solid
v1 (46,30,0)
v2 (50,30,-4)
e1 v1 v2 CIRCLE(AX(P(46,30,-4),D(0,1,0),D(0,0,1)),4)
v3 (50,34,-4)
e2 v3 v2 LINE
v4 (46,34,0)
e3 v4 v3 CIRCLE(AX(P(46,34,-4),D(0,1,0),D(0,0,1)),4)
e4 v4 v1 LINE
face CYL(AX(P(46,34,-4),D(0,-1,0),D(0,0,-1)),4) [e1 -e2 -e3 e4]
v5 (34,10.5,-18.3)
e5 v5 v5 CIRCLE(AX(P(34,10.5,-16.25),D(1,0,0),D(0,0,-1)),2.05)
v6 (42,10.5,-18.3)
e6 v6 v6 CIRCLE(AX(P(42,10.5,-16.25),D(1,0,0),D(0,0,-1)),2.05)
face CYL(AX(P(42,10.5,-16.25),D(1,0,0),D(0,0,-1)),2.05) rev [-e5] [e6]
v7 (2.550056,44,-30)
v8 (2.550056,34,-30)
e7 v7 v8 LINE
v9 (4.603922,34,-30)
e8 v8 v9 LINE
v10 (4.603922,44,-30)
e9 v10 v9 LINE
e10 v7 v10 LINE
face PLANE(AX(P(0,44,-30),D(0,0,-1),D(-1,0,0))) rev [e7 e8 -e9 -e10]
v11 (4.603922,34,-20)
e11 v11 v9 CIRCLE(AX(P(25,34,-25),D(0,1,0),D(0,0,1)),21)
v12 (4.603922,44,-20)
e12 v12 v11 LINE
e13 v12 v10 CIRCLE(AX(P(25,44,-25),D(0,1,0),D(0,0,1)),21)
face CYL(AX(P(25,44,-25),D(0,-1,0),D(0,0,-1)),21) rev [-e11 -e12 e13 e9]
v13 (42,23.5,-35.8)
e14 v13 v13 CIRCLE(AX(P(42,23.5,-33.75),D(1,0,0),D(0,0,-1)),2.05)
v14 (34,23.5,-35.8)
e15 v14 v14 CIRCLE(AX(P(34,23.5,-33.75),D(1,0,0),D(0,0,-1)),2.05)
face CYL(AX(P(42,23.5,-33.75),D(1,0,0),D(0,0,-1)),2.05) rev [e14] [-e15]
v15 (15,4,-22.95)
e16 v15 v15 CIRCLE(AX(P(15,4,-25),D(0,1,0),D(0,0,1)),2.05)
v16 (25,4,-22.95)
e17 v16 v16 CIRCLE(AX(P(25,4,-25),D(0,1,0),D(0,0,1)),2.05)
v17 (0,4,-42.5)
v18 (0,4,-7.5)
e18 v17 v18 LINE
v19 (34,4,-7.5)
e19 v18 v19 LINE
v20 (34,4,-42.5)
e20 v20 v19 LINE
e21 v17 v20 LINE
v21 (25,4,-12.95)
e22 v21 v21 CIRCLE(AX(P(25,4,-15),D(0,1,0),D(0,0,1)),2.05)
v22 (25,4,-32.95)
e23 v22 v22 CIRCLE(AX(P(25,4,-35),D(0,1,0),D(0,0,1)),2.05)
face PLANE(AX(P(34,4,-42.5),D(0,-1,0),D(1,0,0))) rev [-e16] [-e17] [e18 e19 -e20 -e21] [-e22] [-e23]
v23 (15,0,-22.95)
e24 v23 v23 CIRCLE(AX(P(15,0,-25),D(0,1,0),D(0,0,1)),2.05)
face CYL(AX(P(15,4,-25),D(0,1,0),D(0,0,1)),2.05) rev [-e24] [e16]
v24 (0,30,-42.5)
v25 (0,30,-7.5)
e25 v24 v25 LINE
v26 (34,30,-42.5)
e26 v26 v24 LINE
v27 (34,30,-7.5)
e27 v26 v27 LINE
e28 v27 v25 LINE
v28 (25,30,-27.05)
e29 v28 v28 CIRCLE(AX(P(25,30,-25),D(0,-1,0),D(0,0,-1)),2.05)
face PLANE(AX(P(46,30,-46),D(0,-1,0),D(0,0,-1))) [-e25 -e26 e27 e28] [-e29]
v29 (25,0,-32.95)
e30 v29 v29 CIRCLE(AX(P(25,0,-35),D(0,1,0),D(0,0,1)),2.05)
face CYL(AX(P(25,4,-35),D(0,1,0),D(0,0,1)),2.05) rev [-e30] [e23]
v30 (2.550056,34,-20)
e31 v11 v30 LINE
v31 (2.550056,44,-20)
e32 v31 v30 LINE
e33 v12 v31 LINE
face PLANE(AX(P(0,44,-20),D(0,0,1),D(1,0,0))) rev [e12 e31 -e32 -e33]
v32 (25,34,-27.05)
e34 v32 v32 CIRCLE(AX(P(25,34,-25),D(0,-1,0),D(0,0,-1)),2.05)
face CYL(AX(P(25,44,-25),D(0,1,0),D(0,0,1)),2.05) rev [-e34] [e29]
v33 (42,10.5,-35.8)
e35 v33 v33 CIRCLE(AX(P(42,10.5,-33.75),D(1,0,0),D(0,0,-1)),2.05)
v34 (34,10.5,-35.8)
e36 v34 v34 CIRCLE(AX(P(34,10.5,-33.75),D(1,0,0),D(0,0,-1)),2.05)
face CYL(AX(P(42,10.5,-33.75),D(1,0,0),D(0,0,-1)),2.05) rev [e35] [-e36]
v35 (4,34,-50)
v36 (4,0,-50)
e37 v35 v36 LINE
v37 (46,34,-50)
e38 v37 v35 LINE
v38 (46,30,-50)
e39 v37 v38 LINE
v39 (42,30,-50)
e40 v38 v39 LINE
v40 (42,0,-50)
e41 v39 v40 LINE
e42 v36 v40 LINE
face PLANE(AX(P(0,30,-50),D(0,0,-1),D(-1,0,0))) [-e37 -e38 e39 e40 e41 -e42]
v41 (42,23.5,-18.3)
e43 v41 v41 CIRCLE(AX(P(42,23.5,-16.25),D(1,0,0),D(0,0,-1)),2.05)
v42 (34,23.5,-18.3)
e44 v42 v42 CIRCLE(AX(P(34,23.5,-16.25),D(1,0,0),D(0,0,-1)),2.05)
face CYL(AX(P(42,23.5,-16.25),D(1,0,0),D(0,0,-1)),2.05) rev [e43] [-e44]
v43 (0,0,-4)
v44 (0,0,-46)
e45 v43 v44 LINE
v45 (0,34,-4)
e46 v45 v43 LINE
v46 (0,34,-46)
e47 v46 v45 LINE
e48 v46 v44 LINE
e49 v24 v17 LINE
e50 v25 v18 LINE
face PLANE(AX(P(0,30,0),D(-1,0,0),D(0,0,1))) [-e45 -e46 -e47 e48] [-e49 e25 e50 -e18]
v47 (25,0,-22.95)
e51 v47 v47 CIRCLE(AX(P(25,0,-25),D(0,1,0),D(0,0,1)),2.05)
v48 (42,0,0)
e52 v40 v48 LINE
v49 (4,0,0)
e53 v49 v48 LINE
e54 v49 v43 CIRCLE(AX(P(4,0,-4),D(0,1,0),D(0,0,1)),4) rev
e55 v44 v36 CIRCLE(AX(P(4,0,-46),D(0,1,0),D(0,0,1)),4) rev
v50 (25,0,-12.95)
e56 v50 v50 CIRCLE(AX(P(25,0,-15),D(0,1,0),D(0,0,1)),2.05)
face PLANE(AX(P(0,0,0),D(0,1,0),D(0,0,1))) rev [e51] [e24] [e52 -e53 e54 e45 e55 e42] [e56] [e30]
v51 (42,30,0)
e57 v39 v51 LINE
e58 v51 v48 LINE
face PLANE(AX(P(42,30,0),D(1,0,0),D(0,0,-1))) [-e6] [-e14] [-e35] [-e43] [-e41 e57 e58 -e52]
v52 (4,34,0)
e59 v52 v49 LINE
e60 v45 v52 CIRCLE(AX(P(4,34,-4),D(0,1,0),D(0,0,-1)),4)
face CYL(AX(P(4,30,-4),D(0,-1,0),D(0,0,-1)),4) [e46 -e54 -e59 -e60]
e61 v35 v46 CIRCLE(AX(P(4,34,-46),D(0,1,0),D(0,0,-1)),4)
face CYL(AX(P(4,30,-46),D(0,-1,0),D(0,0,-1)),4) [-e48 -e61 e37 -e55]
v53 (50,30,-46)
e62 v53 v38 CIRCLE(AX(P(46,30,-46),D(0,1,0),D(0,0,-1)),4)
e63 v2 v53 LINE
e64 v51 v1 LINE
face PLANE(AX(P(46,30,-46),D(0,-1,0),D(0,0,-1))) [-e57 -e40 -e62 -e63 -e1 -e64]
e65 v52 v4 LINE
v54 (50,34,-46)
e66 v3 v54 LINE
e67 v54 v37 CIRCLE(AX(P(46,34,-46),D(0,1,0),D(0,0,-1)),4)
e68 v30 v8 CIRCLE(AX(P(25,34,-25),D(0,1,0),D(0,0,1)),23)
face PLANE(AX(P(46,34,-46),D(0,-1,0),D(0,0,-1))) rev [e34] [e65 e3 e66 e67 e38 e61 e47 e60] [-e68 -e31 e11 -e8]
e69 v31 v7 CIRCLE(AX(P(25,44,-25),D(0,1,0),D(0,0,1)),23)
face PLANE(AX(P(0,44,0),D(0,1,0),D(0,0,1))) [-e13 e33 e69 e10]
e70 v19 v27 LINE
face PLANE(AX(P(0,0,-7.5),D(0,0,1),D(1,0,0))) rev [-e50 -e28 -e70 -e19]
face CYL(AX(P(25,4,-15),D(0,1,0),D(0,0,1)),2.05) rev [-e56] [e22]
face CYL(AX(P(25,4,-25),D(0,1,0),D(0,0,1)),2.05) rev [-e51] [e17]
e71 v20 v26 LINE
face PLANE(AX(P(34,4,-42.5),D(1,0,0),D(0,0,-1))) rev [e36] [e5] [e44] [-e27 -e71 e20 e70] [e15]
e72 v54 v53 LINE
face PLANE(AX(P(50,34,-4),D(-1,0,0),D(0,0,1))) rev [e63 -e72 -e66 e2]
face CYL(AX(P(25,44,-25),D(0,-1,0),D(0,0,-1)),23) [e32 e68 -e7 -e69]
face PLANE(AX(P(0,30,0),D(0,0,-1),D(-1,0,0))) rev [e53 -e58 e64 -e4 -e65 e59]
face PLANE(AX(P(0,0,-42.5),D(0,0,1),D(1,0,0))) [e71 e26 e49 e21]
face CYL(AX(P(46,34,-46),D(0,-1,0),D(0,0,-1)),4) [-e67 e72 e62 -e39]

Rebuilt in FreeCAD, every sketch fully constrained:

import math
import FreeCAD as App
import Part
import Sketcher

V = App.Vector

doc = App.newDocument("Part")
body = doc.addObject("PartDesign::Body", "Body")

sketch1 = doc.addObject("Sketcher::SketchObject", "Sketch")
body.addObject(sketch1)
sketch1.AttachmentSupport = (doc.XZ_Plane, [""])
sketch1.MapMode = "FlatFace"
sketch1.addGeometry([
    Part.LineSegment(V(42, 0, 0), V(42, -50, 0)),
    Part.LineSegment(V(42, -50, 0), V(4, -50, 0)),
    Part.ArcOfCircle(Part.Circle(V(4, -46, 0), V(0, 0, 1), 4), math.radians(180), math.radians(270)),
    Part.LineSegment(V(0, -46, 0), V(0, -4, 0)),
    Part.ArcOfCircle(Part.Circle(V(4, -4, 0), V(0, 0, 1), 4), math.radians(90), math.radians(180)),
    Part.LineSegment(V(4, 0, 0), V(42, 0, 0)),
], False)
sketch1.addConstraint([
    Sketcher.Constraint("Coincident", 0, 2, 1, 1),
    Sketcher.Constraint("Tangent", 1, 2, 2, 2),
    Sketcher.Constraint("Tangent", 2, 1, 3, 1),
    Sketcher.Constraint("Tangent", 3, 2, 4, 2),
    Sketcher.Constraint("Tangent", 4, 1, 5, 1),
    Sketcher.Constraint("Coincident", 5, 2, 0, 1),
    Sketcher.Constraint("Vertical", 0),
    Sketcher.Constraint("Horizontal", 1),
    Sketcher.Constraint("Vertical", 3),
    Sketcher.Constraint("Horizontal", 5),
    Sketcher.Constraint("Equal", 2, 4),
    Sketcher.Constraint("PointOnObject", 2, 1, -2),
    Sketcher.Constraint("PointOnObject", 4, 1, -1),
    Sketcher.Constraint("Radius", 2, 4.0),
    Sketcher.Constraint("DistanceX", 1, 2, 1, 1, 38.0),
    Sketcher.Constraint("DistanceY", 0, 2, 0, 1, 50.0),
])
pad1 = doc.addObject("PartDesign::Pad", "Pad")
body.addObject(pad1)
pad1.Profile = sketch1
pad1.Length = 30
pad1.Reversed = True

sketch2 = doc.addObject("Sketcher::SketchObject", "Sketch001")
body.addObject(sketch2)
sketch2.AttachmentSupport = (doc.XY_Plane, [""])
sketch2.MapMode = "FlatFace"
sketch2.AttachmentOffset = App.Placement(V(0, 0, -7.5), App.Rotation())
sketch2.addGeometry([
    Part.LineSegment(V(0, 30, 0), V(0, 4, 0)),
    Part.LineSegment(V(0, 4, 0), V(34, 4, 0)),
    Part.LineSegment(V(34, 4, 0), V(34, 30, 0)),
    Part.LineSegment(V(34, 30, 0), V(0, 30, 0)),
], False)
sketch2.addConstraint([
    Sketcher.Constraint("Coincident", 0, 2, 1, 1),
    Sketcher.Constraint("Coincident", 1, 2, 2, 1),
    Sketcher.Constraint("Coincident", 2, 2, 3, 1),
    Sketcher.Constraint("Coincident", 3, 2, 0, 1),
    Sketcher.Constraint("Vertical", 0),
    Sketcher.Constraint("Horizontal", 1),
    Sketcher.Constraint("Vertical", 2),
    Sketcher.Constraint("Horizontal", 3),
    Sketcher.Constraint("PointOnObject", 0, 2, -2),
    Sketcher.Constraint("DistanceX", 1, 1, 1, 2, 34.0),
    Sketcher.Constraint("DistanceY", 0, 2, 0, 1, 26.0),
    Sketcher.Constraint("DistanceY", -1, 1, 0, 2, 4.0),
])
pocket1 = doc.addObject("PartDesign::Pocket", "Pocket")
body.addObject(pocket1)
pocket1.Profile = sketch2
pocket1.Length = 35

sketch3 = doc.addObject("Sketcher::SketchObject", "Sketch002")
body.addObject(sketch3)
sketch3.AttachmentSupport = (doc.XZ_Plane, [""])
sketch3.MapMode = "FlatFace"
sketch3.AttachmentOffset = App.Placement(V(0, 0, -4), App.Rotation())
sketch3.addGeometry([
    Part.Circle(V(25, -35, 0), V(0, 0, 1), 2),
    Part.Circle(V(25, -25, 0), V(0, 0, 1), 2),
    Part.Circle(V(25, -15, 0), V(0, 0, 1), 2),
    Part.Circle(V(15, -25, 0), V(0, 0, 1), 2),
], False)
sketch3.addConstraint([
    Sketcher.Constraint("Equal", 0, 1),
    Sketcher.Constraint("Equal", 1, 2),
    Sketcher.Constraint("Equal", 2, 3),
    Sketcher.Constraint("Horizontal", 1, 3, 3, 3),
    Sketcher.Constraint("Vertical", 0, 3, 1, 3),
    Sketcher.Constraint("Vertical", 1, 3, 2, 3),
    Sketcher.Constraint("Diameter", 0, 4.1),
    Sketcher.Constraint("DistanceX", -1, 1, 0, 3, 25.0),
    Sketcher.Constraint("DistanceY", 0, 3, -1, 1, 35.0),
    Sketcher.Constraint("DistanceY", 1, 3, -1, 1, 25.0),
    Sketcher.Constraint("DistanceY", 2, 3, -1, 1, 15.0),
    Sketcher.Constraint("DistanceX", -1, 1, 3, 3, 15.0),
])
doc.recompute()
hole = doc.addObject("PartDesign::Hole", "Hole")
body.addObject(hole)
hole.Profile = sketch3
hole.ThreadType = "None"
hole.Diameter = 4.1
hole.DepthType = "ThroughAll"
hole.Reversed = True

sketch4 = doc.addObject("Sketcher::SketchObject", "Sketch003")
body.addObject(sketch4)
sketch4.AttachmentSupport = (doc.YZ_Plane, [""])
sketch4.MapMode = "FlatFace"
sketch4.AttachmentOffset = App.Placement(V(0, 0, 42), App.Rotation())
sketch4.addGeometry([
    Part.Circle(V(23.5, -16.2, 0), V(0, 0, 1), 2),
    Part.Circle(V(23.5, -33.8, 0), V(0, 0, 1), 2),
    Part.Circle(V(10.5, -33.8, 0), V(0, 0, 1), 2),
    Part.Circle(V(10.5, -16.2, 0), V(0, 0, 1), 2),
], False)
sketch4.addConstraint([
    Sketcher.Constraint("Equal", 0, 1),
    Sketcher.Constraint("Equal", 1, 2),
    Sketcher.Constraint("Equal", 2, 3),
    Sketcher.Constraint("Horizontal", 1, 3, 2, 3),
    Sketcher.Constraint("Horizontal", 0, 3, 3, 3),
    Sketcher.Constraint("Vertical", 0, 3, 1, 3),
    Sketcher.Constraint("Vertical", 2, 3, 3, 3),
    Sketcher.Constraint("Diameter", 0, 4.1),
    Sketcher.Constraint("DistanceX", 2, 3, 1, 3, 13.0),
    Sketcher.Constraint("DistanceX", -1, 1, 0, 3, 23.5),
    Sketcher.Constraint("DistanceY", 1, 3, 0, 3, 17.5),
    Sketcher.Constraint("DistanceY", 0, 3, -1, 1, 16.25),
])
doc.recompute()
hole2 = doc.addObject("PartDesign::Hole", "Hole001")
body.addObject(hole2)
hole2.Profile = sketch4
hole2.ThreadType = "None"
hole2.Diameter = 4.1
hole2.DepthType = "ThroughAll"

sketch5 = doc.addObject("Sketcher::SketchObject", "Sketch004")
body.addObject(sketch5)
sketch5.AttachmentSupport = (doc.XZ_Plane, [""])
sketch5.MapMode = "FlatFace"
sketch5.AttachmentOffset = App.Placement(V(0, 0, -30), App.Rotation())
sketch5.addGeometry([
    Part.LineSegment(V(4, 0, 0), V(46, 0, 0)),
    Part.ArcOfCircle(Part.Circle(V(46, -4, 0), V(0, 0, 1), 4), math.radians(0), math.radians(90)),
    Part.LineSegment(V(50, -4, 0), V(50, -46, 0)),
    Part.ArcOfCircle(Part.Circle(V(46, -46, 0), V(0, 0, 1), 4), math.radians(-90), math.radians(0)),
    Part.LineSegment(V(46, -50, 0), V(4, -50, 0)),
    Part.ArcOfCircle(Part.Circle(V(4, -46, 0), V(0, 0, 1), 4), math.radians(180), math.radians(270)),
    Part.LineSegment(V(0, -46, 0), V(0, -4, 0)),
    Part.ArcOfCircle(Part.Circle(V(4, -4, 0), V(0, 0, 1), 4), math.radians(90), math.radians(180)),
], False)
sketch5.addConstraint([
    Sketcher.Constraint("Tangent", 0, 2, 1, 2),
    Sketcher.Constraint("Tangent", 1, 1, 2, 1),
    Sketcher.Constraint("Tangent", 2, 2, 3, 2),
    Sketcher.Constraint("Tangent", 3, 1, 4, 1),
    Sketcher.Constraint("Tangent", 4, 2, 5, 2),
    Sketcher.Constraint("Tangent", 5, 1, 6, 1),
    Sketcher.Constraint("Tangent", 6, 2, 7, 2),
    Sketcher.Constraint("Tangent", 7, 1, 0, 1),
    Sketcher.Constraint("Horizontal", 0),
    Sketcher.Constraint("Vertical", 2),
    Sketcher.Constraint("Horizontal", 4),
    Sketcher.Constraint("Vertical", 6),
    Sketcher.Constraint("Equal", 1, 3),
    Sketcher.Constraint("Equal", 3, 5),
    Sketcher.Constraint("Equal", 5, 7),
    Sketcher.Constraint("PointOnObject", 0, 2, -1),
    Sketcher.Constraint("PointOnObject", 5, 1, -2),
    Sketcher.Constraint("Equal", 4, 2),
    Sketcher.Constraint("Radius", 1, 4.0),
    Sketcher.Constraint("DistanceX", 0, 1, 0, 2, 42.0),
])
pad2 = doc.addObject("PartDesign::Pad", "Pad001")
body.addObject(pad2)
pad2.Profile = sketch5
pad2.Length = 4
pad2.Reversed = True

sketch6 = doc.addObject("Sketcher::SketchObject", "Sketch005")
body.addObject(sketch6)
sketch6.AttachmentSupport = (doc.XZ_Plane, [""])
sketch6.MapMode = "FlatFace"
sketch6.AttachmentOffset = App.Placement(V(0, 0, -34), App.Rotation())
sketch6.addGeometry([
    Part.ArcOfCircle(Part.Circle(V(25, -25, 0), V(0, 0, 1), 23), math.radians(-167), math.radians(0)),
    Part.LineSegment(V(2.6, -30, 0), V(4.6, -30, 0)),
    Part.ArcOfCircle(Part.Circle(V(25, -25, 0), V(0, 0, 1), 21), math.radians(-166), math.radians(0)),
    Part.ArcOfCircle(Part.Circle(V(25, -25, 0), V(0, 0, 1), 21), math.radians(0), math.radians(166)),
    Part.LineSegment(V(4.6, -20, 0), V(2.6, -20, 0)),
    Part.ArcOfCircle(Part.Circle(V(25, -25, 0), V(0, 0, 1), 23), math.radians(0), math.radians(167)),
], False)
sketch6.addConstraint([
    Sketcher.Constraint("Coincident", 0, 1, 1, 1),
    Sketcher.Constraint("Coincident", 1, 2, 2, 1),
    Sketcher.Constraint("Tangent", 2, 2, 3, 1),
    Sketcher.Constraint("Coincident", 3, 2, 4, 1),
    Sketcher.Constraint("Coincident", 4, 2, 5, 2),
    Sketcher.Constraint("Tangent", 5, 1, 0, 2),
    Sketcher.Constraint("Horizontal", 1),
    Sketcher.Constraint("Horizontal", 4),
    Sketcher.Constraint("Coincident", 2, 3, 0, 3),
    Sketcher.Constraint("Equal", 2, 3),
    Sketcher.Constraint("Equal", 0, 5),
    Sketcher.Constraint("Horizontal", 5, 3, 2, 2),
    Sketcher.Constraint("Horizontal", 2, 2, 5, 1),
    Sketcher.Constraint("Vertical", 1, 2, 3, 2),
    Sketcher.Constraint("Radius", 0, 23.0),
    Sketcher.Constraint("Radius", 2, 21.0),
    Sketcher.Constraint("DistanceX", -1, 1, 0, 3, 25.0),
    Sketcher.Constraint("DistanceY", 0, 3, -1, 1, 25.0),
    Sketcher.Constraint("DistanceY", 0, 1, -1, 1, 30.0),
])
pad3 = doc.addObject("PartDesign::Pad", "Pad002")
body.addObject(pad3)
pad3.Profile = sketch6
pad3.Length = 10
pad3.Reversed = True

sketch7 = doc.addObject("Sketcher::SketchObject", "Sketch006")
body.addObject(sketch7)
sketch7.AttachmentSupport = (doc.XZ_Plane, [""])
sketch7.MapMode = "FlatFace"
sketch7.AttachmentOffset = App.Placement(V(0, 0, -44), App.Rotation())
sketch7.addGeometry(Part.Circle(V(25, -25, 0), V(0, 0, 1), 2), False)
sketch7.addConstraint([
    Sketcher.Constraint("Diameter", 0, 4.1),
    Sketcher.Constraint("DistanceX", -1, 1, 0, 3, 25.0),
    Sketcher.Constraint("DistanceY", 0, 3, -1, 1, 25.0),
])
doc.recompute()
hole3 = doc.addObject("PartDesign::Hole", "Hole002")
body.addObject(hole3)
hole3.Profile = sketch7
hole3.ThreadType = "None"
hole3.Diameter = 4.1
hole3.DepthType = "ThroughAll"
hole3.Reversed = True

doc.recompute()
